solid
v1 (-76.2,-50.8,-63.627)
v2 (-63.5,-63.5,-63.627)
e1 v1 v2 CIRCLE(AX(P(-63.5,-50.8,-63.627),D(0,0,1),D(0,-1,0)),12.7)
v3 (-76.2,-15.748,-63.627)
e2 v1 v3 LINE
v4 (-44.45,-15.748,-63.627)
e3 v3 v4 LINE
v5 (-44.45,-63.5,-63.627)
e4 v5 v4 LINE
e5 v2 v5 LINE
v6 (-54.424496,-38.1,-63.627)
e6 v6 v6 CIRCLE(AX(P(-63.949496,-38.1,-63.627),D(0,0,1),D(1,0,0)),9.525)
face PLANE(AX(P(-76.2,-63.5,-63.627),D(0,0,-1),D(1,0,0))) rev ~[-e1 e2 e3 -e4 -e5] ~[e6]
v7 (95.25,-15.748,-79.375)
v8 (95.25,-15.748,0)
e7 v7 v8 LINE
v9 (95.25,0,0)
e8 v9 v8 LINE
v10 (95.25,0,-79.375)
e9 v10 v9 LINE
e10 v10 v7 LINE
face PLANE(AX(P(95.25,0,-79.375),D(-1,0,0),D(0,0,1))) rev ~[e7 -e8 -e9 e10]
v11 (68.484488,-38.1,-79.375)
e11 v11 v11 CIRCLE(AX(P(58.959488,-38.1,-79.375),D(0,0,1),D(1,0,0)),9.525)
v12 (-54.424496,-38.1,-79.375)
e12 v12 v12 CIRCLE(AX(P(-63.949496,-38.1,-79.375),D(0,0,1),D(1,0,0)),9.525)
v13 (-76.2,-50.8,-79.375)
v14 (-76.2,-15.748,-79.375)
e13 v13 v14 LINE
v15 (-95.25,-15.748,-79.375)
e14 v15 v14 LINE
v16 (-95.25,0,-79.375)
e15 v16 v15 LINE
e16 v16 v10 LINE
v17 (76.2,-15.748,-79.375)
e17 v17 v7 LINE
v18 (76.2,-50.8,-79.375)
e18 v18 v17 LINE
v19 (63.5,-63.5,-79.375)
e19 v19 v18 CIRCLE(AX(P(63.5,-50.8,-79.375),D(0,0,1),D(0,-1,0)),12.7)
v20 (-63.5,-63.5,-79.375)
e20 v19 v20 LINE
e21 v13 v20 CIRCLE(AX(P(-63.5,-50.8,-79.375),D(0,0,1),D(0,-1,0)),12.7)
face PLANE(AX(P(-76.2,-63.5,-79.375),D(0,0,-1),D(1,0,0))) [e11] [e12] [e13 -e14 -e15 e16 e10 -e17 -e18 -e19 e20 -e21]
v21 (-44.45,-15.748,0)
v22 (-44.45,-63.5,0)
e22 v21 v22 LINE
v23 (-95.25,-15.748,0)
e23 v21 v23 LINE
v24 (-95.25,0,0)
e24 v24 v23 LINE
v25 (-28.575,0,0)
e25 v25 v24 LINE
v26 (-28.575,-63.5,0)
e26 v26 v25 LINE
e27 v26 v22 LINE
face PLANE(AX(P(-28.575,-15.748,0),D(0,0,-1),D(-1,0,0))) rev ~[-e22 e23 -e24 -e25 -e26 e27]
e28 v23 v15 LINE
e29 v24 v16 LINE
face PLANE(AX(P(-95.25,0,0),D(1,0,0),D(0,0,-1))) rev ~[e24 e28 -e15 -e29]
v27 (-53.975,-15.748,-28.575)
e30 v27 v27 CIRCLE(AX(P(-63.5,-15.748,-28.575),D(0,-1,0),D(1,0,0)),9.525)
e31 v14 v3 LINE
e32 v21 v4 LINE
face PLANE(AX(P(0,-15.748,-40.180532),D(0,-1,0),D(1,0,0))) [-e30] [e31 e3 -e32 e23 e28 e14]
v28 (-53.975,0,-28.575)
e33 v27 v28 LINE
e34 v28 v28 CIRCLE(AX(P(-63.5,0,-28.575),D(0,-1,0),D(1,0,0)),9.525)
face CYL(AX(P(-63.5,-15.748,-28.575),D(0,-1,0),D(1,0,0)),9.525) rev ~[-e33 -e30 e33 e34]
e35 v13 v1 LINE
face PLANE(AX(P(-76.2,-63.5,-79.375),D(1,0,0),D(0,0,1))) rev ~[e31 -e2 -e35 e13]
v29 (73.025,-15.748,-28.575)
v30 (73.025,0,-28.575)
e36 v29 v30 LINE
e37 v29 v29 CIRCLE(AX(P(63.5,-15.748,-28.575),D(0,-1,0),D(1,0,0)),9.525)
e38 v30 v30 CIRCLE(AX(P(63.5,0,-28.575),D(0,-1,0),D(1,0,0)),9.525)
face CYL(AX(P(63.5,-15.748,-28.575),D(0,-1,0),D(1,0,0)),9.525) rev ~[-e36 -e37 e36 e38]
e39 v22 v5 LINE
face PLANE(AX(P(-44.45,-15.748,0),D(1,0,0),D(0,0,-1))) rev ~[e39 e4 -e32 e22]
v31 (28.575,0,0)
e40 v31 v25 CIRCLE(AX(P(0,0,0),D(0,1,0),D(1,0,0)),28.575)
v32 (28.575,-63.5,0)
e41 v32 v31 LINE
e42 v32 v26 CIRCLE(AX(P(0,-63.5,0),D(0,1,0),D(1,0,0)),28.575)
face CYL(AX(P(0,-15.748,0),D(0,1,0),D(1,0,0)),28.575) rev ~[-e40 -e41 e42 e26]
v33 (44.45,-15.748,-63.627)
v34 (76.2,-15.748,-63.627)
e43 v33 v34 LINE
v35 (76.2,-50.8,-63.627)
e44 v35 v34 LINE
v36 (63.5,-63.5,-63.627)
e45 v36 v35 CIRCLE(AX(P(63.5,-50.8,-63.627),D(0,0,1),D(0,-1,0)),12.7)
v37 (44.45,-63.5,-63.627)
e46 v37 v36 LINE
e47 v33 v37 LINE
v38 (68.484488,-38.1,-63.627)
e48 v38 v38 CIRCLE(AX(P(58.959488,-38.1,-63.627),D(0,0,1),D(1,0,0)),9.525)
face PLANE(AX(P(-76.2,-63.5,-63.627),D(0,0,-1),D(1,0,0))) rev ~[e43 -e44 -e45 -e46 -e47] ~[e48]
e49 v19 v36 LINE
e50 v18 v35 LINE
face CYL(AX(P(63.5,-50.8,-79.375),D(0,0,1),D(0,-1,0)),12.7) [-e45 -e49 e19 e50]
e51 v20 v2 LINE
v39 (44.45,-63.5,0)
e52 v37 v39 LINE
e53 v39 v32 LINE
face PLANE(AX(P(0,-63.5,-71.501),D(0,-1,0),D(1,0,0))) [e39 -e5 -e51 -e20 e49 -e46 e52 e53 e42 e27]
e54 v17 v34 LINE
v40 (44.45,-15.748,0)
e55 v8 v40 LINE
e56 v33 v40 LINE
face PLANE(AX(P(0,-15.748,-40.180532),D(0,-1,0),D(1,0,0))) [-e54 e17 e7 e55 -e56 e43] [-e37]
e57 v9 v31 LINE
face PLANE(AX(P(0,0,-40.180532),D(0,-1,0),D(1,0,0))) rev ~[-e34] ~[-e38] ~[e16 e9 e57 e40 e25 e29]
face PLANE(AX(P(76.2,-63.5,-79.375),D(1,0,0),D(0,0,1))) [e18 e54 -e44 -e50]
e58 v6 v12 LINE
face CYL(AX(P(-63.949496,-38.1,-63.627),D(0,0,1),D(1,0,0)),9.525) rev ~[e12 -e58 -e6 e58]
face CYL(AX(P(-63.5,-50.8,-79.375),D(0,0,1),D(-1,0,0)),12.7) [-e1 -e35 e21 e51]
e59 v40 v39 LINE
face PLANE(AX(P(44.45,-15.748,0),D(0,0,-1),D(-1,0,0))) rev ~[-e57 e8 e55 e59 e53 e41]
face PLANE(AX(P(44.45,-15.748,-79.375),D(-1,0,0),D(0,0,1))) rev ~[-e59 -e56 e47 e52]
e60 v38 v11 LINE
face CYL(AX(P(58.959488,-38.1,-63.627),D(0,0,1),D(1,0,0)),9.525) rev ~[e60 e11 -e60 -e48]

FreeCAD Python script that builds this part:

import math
import FreeCAD as App
import Part
import Sketcher
from FreeCAD import Vector
Q = App.Units.Quantity


def edges_at(feature, points):
    """Names of the edges that pass closest to the given points."""
    edges = feature.Shape.Edges
    near = lambda p: min(range(len(edges)), key=lambda i: edges[i].distToShape(Part.Vertex(*p))[0])
    return sorted({f"Edge{near(p) + 1}" for p in points})


def add_polygon(sketch, points):
    """Adds a closed chain of lines whose ends are joined by coincident constraints."""
    first, n = sketch.GeometryCount, len(points)
    for a, b in zip(points, points[1:] + points[:1]):
        sketch.addGeometry(Part.LineSegment(App.Vector(*a, 0), App.Vector(*b, 0)), False)
    for i in range(n):
        sketch.addConstraint(Sketcher.Constraint("Coincident", first + i, 2, first + (i + 1) % n, 1))

doc = App.newDocument("Part")
params = doc.addObject("Spreadsheet::Sheet", "Params")
for row, (alias, value) in enumerate([
    ("sketch1_width", "7.5 in"),
    ("sketch1_radius", "1.125 in"),
    ("sketch1_height", "3.125 in"),
    ("pad1_length", "0.62 in"),
    ("sketch2_width", "3.5 in"),
    ("sketch2_radius", "1.125 in"),
    ("sketch2_height", "3.125 in"),
    ("pad2_length", "1.88 in"),
    ("sketch3_width", "6 in"),
    ("sketch3_height", "0.62 in"),
    ("sketch4_diameter", "0.75 in"),
    ("fillet_radius", "0.5 in"),
    ("sketch5_diameter", "0.75 in"),
    ("sketch6_diameter", "0.75 in"),
    ("sketch7_diameter", "0.75 in"),
    ("pocket4_length", "1 in"),
], start=1):
    params.set(f"A{row}", alias)
    params.set(f"B{row}", "=" + value)
    params.setAlias(f"B{row}", alias)

body = doc.addObject("PartDesign::Body", "Body")

sketch1 = body.newObject("Sketcher::SketchObject", "Sketch")
sketch1.AttachmentSupport = (doc.getObject("XZ_Plane"), [""])
sketch1.MapMode = "FlatFace"
sketch1.addGeometry([
    Part.LineSegment(Vector(-29, 0, 0), Vector(-95, 0, 0)),
    Part.LineSegment(Vector(-95, 0, 0), Vector(-95, -79, 0)),
    Part.LineSegment(Vector(-95, -79, 0), Vector(95, -79, 0)),
    Part.LineSegment(Vector(95, -79, 0), Vector(95, 0, 0)),
    Part.LineSegment(Vector(95, 0, 0), Vector(29, 0, 0)),
    Part.ArcOfCircle(Part.Circle(Vector(0, 0, 0), Vector(0, 0, 1), 29), math.radians(180), math.radians(360)),
], False)
sketch1.addConstraint([
    Sketcher.Constraint("Coincident", 0, 2, 1, 1),
    Sketcher.Constraint("Coincident", 1, 2, 2, 1),
    Sketcher.Constraint("Coincident", 2, 2, 3, 1),
    Sketcher.Constraint("Coincident", 3, 2, 4, 1),
    Sketcher.Constraint("Coincident", 4, 2, 5, 2),
    Sketcher.Constraint("Coincident", 5, 1, 0, 1),
    Sketcher.Constraint("Horizontal", 0),
    Sketcher.Constraint("Vertical", 1),
    Sketcher.Constraint("Horizontal", 2),
    Sketcher.Constraint("Vertical", 3),
    Sketcher.Constraint("Horizontal", 4),
    Sketcher.Constraint("Coincident", 5, 3, -1, 1),
    Sketcher.Constraint("Symmetric", 0, 2, 3, 2, -1, 1),
    Sketcher.Constraint("PointOnObject", 0, 2, -1),
    Sketcher.Constraint("DistanceX", 2, 1, 2, 2, Q("7.5 in")),
    Sketcher.Constraint("Radius", 5, Q("1.125 in")),
    Sketcher.Constraint("DistanceY", 1, 2, 1, 1, Q("3.125 in")),
])
sketch1.setExpression("Constraints[14]", "Params.sketch1_width")
sketch1.setExpression("Constraints[15]", "Params.sketch1_radius")
sketch1.setExpression("Constraints[16]", "Params.sketch1_height")
pad1 = body.newObject("PartDesign::Pad", "Pad")
pad1.Profile = sketch1
pad1.setExpression("Length", "Params.pad1_length")

sketch2 = body.newObject("Sketcher::SketchObject", "Sketch001")
sketch2.AttachmentSupport = (doc.getObject("XZ_Plane"), [""])
sketch2.MapMode = "FlatFace"
sketch2.AttachmentOffset = App.Placement(Vector(0, 0, 0.62 * 25.4), App.Rotation())
sketch2.addGeometry([
    Part.LineSegment(Vector(-29, 0, 0), Vector(-44, 0, 0)),
    Part.LineSegment(Vector(-44, 0, 0), Vector(-44, -79, 0)),
    Part.LineSegment(Vector(-44, -79, 0), Vector(44, -79, 0)),
    Part.LineSegment(Vector(44, -79, 0), Vector(44, 0, 0)),
    Part.LineSegment(Vector(44, 0, 0), Vector(29, 0, 0)),
    Part.ArcOfCircle(Part.Circle(Vector(0, 0, 0), Vector(0, 0, 1), 29), math.radians(180), math.radians(360)),
], False)
sketch2.addConstraint([
    Sketcher.Constraint("Coincident", 0, 2, 1, 1),
    Sketcher.Constraint("Coincident", 1, 2, 2, 1),
    Sketcher.Constraint("Coincident", 2, 2, 3, 1),
    Sketcher.Constraint("Coincident", 3, 2, 4, 1),
    Sketcher.Constraint("Coincident", 4, 2, 5, 2),
    Sketcher.Constraint("Coincident", 5, 1, 0, 1),
    Sketcher.Constraint("Horizontal", 0),
    Sketcher.Constraint("Vertical", 1),
    Sketcher.Constraint("Horizontal", 2),
    Sketcher.Constraint("Vertical", 3),
    Sketcher.Constraint("Horizontal", 4),
    Sketcher.Constraint("Coincident", 5, 3, -1, 1),
    Sketcher.Constraint("Symmetric", 0, 2, 3, 2, -1, 1),
    Sketcher.Constraint("PointOnObject", 0, 2, -1),
    Sketcher.Constraint("DistanceX", 2, 1, 2, 2, Q("3.5 in")),
    Sketcher.Constraint("Radius", 5, Q("1.125 in")),
    Sketcher.Constraint("DistanceY", 1, 2, 1, 1, Q("3.125 in")),
])
sketch2.setExpression("Constraints[14]", "Params.sketch2_width")
sketch2.setExpression("Constraints[15]", "Params.sketch2_radius")
sketch2.setExpression("Constraints[16]", "Params.sketch2_height")
pad2 = body.newObject("PartDesign::Pad", "Pad001")
pad2.Profile = sketch2
pad2.setExpression("Length", "Params.pad2_length")

sketch3 = body.newObject("Sketcher::SketchObject", "Sketch002")
sketch3.AttachmentSupport = (doc.getObject("XZ_Plane"), [""])
sketch3.MapMode = "FlatFace"
sketch3.AttachmentOffset = App.Placement(Vector(0, 0, 2.5 * 25.4), App.Rotation())
add_polygon(sketch3, [(-76, -64), (-76, -79), (76, -79), (76, -64)])
sketch3.addConstraint([
    Sketcher.Constraint("Vertical", 0),
    Sketcher.Constraint("Horizontal", 1),
    Sketcher.Constraint("Vertical", 2),
    Sketcher.Constraint("Horizontal", 3),
    Sketcher.Constraint("DistanceX", 1, 1, 1, 2, Q("6 in")),
    Sketcher.Constraint("DistanceX", 0, 2, -1, 1, Q("3 in")),
    Sketcher.Constraint("DistanceY", 0, 2, 0, 1, Q("0.62 in")),
    Sketcher.Constraint("DistanceY", 0, 2, -1, 1, Q("3.125 in")),
])
sketch3.setExpression("Constraints[8]", "Params.sketch3_width")
sketch3.setExpression("Constraints[10]", "Params.sketch3_height")
pad3 = body.newObject("PartDesign::Pad", "Pad002")
pad3.Profile = sketch3
pad3.Type = "UpToLast"
pad3.Reversed = True

sketch4 = body.newObject("Sketcher::SketchObject", "Sketch003")
sketch4.AttachmentSupport = (doc.getObject("XY_Plane"), [""])
sketch4.MapMode = "FlatFace"
sketch4.AttachmentOffset = App.Placement(Vector(0, 0, -2.505 * 25.4), App.Rotation())
sketch4.addGeometry(Part.Circle(Vector(59, -38, 0), Vector(0, 0, 1), 10), False)
sketch4.addConstraint([
    Sketcher.Constraint("Diameter", 0, Q("0.75 in")),
    Sketcher.Constraint("DistanceY", 0, 3, -1, 1, Q("1.5 in")),
    Sketcher.Constraint("DistanceX", -1, 1, 0, 3, Q("58.959488 mm")),
])
sketch4.setExpression("Constraints[0]", "Params.sketch4_diameter")
pocket1 = body.newObject("PartDesign::Pocket", "Pocket")
pocket1.Profile = sketch4
pocket1.Type = "ThroughAll"
doc.recompute()

fillet = body.newObject("PartDesign::Fillet", "Fillet")
fillet.Base = (pocket1, edges_at(pocket1, [(76.2, -63.5, -71.501), (-76.2, -63.5, -71.501)]))
fillet.setExpression("Radius", "Params.fillet_radius")

sketch5 = body.newObject("Sketcher::SketchObject", "Sketch004")
sketch5.AttachmentSupport = (doc.getObject("XY_Plane"), [""])
sketch5.MapMode = "FlatFace"
sketch5.AttachmentOffset = App.Placement(Vector(0, 0, -2.505 * 25.4), App.Rotation())
sketch5.addGeometry(Part.Circle(Vector(-64, -38, 0), Vector(0, 0, 1), 10), False)
sketch5.addConstraint([
    Sketcher.Constraint("Diameter", 0, Q("0.75 in")),
    Sketcher.Constraint("DistanceY", 0, 3, -1, 1, Q("1.5 in")),
    Sketcher.Constraint("DistanceX", 0, 3, -1, 1, Q("63.949496 mm")),
])
sketch5.setExpression("Constraints[0]", "Params.sketch5_diameter")
pocket2 = body.newObject("PartDesign::Pocket", "Pocket001")
pocket2.Profile = sketch5
pocket2.Type = "ThroughAll"

sketch6 = body.newObject("Sketcher::SketchObject", "Sketch005")
sketch6.AttachmentSupport = (doc.getObject("XZ_Plane"), [""])
sketch6.MapMode = "FlatFace"
sketch6.AttachmentOffset = App.Placement(Vector(0, 0, 0.62 * 25.4), App.Rotation())
sketch6.addGeometry([
    Part.Circle(Vector(-64, -29, 0), Vector(0, 0, 1), 10),
    Part.Circle(Vector(64, -29, 0), Vector(0, 0, 1), 10),
], False)
sketch6.addConstraint([
    Sketcher.Constraint("Equal", 0, 1),
    Sketcher.Constraint("Symmetric", 0, 3, 1, 3, -2),
    Sketcher.Constraint("Diameter", 0, Q("0.75 in")),
    Sketcher.Constraint("DistanceX", 0, 3, 1, 3, Q("5 in")),
    Sketcher.Constraint("DistanceY", 0, 3, -1, 1, Q("1.125 in")),
])
sketch6.setExpression("Constraints[2]", "Params.sketch6_diameter")
pocket3 = body.newObject("PartDesign::Pocket", "Pocket002")
pocket3.Profile = sketch6
pocket3.Type = "ThroughAll"

sketch7 = body.newObject("Sketcher::SketchObject", "Sketch006")
sketch7.AttachmentSupport = (doc.getObject("XZ_Plane"), [""])
sketch7.MapMode = "FlatFace"
sketch7.AttachmentOffset = App.Placement(Vector(0, 0, 0.62 * 25.4), App.Rotation())
sketch7.addGeometry([
    Part.Circle(Vector(-64, -29, 0), Vector(0, 0, 1), 10),
    Part.Circle(Vector(64, -29, 0), Vector(0, 0, 1), 10),
], False)
sketch7.addConstraint([
    Sketcher.Constraint("Equal", 0, 1),
    Sketcher.Constraint("Symmetric", 0, 3, 1, 3, -2),
    Sketcher.Constraint("Diameter", 0, Q("0.75 in")),
    Sketcher.Constraint("DistanceX", 0, 3, 1, 3, Q("5 in")),
    Sketcher.Constraint("DistanceY", 0, 3, -1, 1, Q("1.125 in")),
])
sketch7.setExpression("Constraints[2]", "Params.sketch7_diameter")
pocket4 = body.newObject("PartDesign::Pocket", "Pocket003")
pocket4.Profile = sketch7
pocket4.setExpression("Length", "Params.pocket4_length")

doc.recompute()
